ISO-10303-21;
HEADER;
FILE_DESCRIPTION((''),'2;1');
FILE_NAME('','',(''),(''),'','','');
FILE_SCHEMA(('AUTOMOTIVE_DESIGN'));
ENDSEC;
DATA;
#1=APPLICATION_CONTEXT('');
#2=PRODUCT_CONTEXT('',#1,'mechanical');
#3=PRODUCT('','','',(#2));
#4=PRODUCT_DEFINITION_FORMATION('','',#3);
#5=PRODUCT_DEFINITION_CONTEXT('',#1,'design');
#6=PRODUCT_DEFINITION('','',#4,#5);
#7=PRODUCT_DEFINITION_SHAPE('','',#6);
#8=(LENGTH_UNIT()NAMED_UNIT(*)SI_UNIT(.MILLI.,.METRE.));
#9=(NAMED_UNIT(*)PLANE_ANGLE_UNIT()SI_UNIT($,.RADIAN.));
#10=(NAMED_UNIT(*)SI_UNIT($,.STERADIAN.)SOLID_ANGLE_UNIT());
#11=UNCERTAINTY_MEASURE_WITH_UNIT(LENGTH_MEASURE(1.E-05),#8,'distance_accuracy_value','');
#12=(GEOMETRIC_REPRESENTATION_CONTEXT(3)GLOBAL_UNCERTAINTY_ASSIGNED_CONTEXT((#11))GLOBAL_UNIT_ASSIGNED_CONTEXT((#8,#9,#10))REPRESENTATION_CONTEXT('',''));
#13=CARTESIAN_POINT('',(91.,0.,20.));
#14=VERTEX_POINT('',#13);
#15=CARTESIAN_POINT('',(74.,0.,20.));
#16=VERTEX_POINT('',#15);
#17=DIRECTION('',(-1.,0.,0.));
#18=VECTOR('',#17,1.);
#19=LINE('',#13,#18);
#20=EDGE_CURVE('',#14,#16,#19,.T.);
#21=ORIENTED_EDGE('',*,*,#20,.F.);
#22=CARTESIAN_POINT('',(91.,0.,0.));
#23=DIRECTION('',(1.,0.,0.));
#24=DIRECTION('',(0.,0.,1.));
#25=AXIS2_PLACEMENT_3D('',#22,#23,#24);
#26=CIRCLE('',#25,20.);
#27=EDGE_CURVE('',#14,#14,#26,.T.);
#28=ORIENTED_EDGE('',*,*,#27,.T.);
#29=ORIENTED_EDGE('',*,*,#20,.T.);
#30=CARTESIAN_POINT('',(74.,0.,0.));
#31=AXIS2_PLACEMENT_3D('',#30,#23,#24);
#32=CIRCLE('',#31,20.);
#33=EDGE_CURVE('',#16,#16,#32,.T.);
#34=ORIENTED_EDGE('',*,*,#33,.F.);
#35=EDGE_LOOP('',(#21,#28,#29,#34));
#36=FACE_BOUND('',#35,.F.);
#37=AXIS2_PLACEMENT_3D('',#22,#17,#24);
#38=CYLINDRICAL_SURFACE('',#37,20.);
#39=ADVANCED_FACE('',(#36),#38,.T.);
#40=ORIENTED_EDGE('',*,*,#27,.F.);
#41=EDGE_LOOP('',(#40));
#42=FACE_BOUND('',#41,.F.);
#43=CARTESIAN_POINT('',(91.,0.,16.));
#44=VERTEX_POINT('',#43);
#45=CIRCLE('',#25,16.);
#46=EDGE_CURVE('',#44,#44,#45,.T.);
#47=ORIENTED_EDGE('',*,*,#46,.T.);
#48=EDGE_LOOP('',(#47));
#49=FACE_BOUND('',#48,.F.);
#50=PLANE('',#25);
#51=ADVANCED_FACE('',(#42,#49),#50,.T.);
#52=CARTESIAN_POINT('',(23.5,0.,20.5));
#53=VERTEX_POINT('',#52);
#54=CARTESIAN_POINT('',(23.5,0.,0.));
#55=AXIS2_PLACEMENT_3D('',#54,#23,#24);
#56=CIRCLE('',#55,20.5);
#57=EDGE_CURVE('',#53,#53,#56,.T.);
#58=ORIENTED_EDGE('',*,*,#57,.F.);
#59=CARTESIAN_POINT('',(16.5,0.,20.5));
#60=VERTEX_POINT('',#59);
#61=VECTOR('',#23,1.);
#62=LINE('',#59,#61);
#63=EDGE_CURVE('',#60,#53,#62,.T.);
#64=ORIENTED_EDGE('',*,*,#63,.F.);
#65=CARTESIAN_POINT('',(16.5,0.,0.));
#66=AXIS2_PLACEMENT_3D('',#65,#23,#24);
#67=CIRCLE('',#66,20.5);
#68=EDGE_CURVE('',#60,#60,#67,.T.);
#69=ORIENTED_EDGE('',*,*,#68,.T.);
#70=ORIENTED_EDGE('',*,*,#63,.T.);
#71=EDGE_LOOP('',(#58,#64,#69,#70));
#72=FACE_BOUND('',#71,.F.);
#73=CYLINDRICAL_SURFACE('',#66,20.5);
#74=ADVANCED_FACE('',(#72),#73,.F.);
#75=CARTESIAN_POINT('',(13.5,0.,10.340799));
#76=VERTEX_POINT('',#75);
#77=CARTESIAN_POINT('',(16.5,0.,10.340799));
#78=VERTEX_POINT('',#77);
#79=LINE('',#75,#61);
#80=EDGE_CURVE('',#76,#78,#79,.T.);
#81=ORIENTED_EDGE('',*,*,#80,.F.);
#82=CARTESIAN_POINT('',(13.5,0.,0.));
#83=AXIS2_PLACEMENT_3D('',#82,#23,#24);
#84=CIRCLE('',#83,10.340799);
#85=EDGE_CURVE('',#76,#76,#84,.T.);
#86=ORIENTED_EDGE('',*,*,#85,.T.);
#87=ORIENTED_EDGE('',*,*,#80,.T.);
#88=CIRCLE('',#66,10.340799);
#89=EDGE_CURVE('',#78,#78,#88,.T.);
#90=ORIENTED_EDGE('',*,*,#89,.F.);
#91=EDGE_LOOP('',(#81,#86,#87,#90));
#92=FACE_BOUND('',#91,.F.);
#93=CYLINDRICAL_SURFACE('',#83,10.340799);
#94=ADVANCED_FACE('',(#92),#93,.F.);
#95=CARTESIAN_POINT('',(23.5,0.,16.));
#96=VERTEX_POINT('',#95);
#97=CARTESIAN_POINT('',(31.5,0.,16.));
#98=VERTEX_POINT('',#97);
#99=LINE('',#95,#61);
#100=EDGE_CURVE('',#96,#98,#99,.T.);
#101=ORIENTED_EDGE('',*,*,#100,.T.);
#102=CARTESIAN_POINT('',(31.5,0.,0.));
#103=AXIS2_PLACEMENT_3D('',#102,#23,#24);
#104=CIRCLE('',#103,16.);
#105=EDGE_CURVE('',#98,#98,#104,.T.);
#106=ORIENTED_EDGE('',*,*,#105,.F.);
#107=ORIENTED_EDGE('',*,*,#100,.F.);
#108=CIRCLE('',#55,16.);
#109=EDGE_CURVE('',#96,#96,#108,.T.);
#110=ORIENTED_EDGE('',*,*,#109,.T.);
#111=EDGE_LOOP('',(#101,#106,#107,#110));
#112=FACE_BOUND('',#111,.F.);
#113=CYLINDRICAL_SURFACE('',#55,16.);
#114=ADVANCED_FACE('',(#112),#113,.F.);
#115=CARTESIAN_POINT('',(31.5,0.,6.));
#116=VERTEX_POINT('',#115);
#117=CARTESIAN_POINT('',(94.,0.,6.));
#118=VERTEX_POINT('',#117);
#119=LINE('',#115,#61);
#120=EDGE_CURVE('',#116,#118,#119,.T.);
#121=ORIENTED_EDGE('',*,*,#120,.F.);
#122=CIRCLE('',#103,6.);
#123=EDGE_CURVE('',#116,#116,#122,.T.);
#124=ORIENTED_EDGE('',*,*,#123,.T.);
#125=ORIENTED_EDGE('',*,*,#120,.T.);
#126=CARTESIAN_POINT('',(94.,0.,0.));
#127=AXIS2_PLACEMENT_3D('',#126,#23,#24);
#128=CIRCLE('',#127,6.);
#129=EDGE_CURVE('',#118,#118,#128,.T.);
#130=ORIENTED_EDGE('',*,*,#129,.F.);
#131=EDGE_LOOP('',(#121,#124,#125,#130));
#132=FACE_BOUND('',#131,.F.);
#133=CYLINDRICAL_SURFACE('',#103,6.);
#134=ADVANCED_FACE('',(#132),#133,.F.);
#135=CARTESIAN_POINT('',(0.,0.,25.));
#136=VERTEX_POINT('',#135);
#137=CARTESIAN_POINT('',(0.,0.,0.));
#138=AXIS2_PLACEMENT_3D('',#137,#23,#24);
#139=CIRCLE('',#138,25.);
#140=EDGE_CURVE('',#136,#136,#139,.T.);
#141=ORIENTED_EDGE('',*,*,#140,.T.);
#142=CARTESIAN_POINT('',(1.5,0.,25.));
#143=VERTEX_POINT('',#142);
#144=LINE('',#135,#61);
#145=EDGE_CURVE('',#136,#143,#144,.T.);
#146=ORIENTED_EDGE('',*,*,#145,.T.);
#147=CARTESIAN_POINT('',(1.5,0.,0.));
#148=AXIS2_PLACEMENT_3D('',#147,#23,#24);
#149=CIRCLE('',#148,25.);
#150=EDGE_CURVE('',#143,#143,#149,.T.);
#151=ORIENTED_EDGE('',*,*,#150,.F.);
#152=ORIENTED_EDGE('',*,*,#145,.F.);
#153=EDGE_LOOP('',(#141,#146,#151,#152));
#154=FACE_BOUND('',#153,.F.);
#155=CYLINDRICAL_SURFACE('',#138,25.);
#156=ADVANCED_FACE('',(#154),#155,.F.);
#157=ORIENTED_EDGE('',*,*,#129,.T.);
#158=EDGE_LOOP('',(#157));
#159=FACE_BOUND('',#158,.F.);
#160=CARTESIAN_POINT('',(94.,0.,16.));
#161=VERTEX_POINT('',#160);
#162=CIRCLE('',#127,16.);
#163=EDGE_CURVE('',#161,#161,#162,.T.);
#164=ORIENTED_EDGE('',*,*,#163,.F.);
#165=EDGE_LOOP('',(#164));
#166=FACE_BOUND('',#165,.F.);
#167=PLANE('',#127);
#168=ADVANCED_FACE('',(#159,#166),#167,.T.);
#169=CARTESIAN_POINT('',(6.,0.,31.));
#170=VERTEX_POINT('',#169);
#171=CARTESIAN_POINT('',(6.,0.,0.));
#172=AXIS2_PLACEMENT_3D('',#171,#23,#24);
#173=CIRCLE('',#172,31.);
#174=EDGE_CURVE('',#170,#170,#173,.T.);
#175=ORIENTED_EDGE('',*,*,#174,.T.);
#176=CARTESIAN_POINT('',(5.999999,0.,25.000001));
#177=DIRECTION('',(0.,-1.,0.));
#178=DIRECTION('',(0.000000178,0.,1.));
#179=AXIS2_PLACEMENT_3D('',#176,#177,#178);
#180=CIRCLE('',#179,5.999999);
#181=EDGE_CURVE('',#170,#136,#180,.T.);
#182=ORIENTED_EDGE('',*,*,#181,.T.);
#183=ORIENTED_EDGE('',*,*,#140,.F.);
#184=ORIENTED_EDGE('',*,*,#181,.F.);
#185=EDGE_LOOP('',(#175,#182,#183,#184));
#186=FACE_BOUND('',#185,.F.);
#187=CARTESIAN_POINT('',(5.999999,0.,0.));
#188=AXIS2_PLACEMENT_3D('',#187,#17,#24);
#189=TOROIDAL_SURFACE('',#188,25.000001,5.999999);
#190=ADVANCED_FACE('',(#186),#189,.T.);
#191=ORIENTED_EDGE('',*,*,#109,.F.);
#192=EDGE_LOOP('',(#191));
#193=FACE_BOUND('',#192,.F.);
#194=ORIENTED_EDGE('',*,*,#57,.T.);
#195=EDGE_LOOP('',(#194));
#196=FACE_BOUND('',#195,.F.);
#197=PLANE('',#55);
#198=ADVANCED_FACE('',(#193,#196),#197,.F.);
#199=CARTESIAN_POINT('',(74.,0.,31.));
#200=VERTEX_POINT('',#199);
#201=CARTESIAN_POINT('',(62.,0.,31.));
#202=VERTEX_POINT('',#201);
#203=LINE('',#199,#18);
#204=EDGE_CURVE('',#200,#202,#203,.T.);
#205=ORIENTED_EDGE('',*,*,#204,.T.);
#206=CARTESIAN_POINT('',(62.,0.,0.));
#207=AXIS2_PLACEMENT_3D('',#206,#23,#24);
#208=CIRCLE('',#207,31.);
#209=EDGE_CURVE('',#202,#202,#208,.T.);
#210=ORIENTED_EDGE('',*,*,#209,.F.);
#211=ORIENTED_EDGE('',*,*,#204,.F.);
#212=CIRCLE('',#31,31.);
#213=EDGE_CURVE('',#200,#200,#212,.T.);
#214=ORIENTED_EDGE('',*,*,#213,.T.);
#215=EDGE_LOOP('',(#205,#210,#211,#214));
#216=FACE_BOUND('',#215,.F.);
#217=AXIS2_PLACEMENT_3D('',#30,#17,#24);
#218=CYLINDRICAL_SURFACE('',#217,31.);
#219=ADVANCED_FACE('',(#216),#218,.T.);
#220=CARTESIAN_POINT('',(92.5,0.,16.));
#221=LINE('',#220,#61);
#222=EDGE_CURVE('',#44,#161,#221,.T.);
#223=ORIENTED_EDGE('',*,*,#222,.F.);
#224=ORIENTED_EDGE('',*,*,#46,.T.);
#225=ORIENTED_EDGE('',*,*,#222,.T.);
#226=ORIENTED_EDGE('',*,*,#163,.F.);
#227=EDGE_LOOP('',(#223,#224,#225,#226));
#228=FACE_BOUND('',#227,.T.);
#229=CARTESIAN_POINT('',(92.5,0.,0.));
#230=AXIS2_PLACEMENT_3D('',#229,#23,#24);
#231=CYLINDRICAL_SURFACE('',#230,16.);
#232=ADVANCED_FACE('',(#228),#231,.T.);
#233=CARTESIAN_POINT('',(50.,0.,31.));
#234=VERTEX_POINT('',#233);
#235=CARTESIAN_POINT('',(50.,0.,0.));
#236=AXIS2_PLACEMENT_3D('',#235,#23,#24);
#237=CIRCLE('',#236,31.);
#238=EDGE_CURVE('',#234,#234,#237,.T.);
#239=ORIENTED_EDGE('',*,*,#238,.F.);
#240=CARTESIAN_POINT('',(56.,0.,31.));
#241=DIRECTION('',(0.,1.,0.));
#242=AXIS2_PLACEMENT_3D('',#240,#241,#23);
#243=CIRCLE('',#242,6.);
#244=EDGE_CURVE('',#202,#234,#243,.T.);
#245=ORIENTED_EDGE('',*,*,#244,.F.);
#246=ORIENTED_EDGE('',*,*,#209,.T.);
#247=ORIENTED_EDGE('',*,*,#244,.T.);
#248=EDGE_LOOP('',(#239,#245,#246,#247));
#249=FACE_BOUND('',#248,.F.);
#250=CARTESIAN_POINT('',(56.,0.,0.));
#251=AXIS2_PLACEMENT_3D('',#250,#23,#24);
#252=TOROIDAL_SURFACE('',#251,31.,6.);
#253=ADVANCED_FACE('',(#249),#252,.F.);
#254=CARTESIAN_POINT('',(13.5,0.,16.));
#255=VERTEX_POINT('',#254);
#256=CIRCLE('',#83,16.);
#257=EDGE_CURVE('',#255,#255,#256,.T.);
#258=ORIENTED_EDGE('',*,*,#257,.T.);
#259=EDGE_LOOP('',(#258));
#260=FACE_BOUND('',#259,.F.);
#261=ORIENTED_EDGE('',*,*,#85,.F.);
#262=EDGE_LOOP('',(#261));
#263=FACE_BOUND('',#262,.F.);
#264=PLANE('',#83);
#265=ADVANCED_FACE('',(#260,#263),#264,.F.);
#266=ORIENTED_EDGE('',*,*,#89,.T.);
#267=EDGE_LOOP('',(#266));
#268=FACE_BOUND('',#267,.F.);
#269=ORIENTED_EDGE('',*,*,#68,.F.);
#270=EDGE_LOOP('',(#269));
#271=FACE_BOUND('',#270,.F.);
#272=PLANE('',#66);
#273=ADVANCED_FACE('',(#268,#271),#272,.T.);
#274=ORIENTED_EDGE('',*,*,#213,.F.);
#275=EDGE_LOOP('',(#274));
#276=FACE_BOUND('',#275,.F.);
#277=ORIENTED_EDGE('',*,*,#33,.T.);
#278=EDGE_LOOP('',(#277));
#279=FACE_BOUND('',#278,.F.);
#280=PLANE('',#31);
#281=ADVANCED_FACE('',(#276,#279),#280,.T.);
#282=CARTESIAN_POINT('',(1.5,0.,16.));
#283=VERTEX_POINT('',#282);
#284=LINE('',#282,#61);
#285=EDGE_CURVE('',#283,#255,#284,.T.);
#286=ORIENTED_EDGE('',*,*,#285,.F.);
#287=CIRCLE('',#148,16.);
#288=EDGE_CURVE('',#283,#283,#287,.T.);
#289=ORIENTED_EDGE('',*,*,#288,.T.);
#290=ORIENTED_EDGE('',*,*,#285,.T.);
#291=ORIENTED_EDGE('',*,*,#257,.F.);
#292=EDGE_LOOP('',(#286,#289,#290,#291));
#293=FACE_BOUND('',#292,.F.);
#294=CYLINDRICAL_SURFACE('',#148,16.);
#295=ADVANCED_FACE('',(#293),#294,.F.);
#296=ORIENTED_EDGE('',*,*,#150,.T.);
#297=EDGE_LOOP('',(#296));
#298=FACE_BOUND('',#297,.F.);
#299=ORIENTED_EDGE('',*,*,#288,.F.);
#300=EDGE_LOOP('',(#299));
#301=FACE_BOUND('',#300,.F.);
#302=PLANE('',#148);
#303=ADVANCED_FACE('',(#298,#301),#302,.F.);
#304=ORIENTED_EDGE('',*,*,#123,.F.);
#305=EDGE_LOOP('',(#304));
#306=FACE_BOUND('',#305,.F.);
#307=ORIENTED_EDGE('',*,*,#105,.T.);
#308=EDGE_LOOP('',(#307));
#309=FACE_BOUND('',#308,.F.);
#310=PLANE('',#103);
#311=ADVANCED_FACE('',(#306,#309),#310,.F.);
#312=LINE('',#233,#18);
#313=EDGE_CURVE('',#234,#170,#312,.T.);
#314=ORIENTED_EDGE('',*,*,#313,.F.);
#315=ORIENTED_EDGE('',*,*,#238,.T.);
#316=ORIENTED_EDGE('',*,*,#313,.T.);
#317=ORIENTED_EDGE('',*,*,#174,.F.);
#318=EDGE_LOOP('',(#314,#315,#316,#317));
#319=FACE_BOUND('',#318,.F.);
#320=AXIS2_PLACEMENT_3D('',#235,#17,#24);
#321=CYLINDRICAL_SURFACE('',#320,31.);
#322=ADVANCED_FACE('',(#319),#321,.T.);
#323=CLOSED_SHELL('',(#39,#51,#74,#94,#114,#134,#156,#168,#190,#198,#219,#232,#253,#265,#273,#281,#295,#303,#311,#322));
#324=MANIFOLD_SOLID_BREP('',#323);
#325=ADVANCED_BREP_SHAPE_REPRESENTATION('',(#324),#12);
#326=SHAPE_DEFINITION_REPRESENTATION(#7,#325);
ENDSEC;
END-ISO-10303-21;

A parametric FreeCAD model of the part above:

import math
import FreeCAD as App
import Part
import Sketcher
Q = App.Units.Quantity

doc = App.newDocument("Part")
params = doc.addObject("Spreadsheet::Sheet", "Params")
for row, (alias, value) in enumerate([
    ("sketch1_radius", "5.999999 mm"),
    ("sketch1_width", "12 mm"),
    ("sketch1_width2", "3 mm"),
    ("sketch1_width3", "7 mm"),
    ("sketch1_width4", "8 mm"),
    ("revolution_angle", "360 deg"),
], start=1):
    params.set(f"A{row}", alias)
    params.set(f"B{row}", "=" + value)
    params.setAlias(f"B{row}", alias)

body = doc.addObject("PartDesign::Body", "Body")

# Sketch on XZ plane
sketch1 = body.newObject("Sketcher::SketchObject", "Sketch")
sketch1.AttachmentSupport = (doc.getObject("XZ_Plane"), [""])
sketch1.MapMode = "FlatFace"
sketch1.addGeometry(Part.ArcOfCircle(Part.Circle(App.Vector(5.999999, 25.000001, 0), App.Vector(0, 0, 1), 5.999999), math.radians(89.99999), math.radians(180.00001)), False)
sketch1.addGeometry(Part.LineSegment(App.Vector(0, 25, 0), App.Vector(1.5, 25, 0)), False)
sketch1.addGeometry(Part.LineSegment(App.Vector(1.5, 25, 0), App.Vector(1.5, 16, 0)), False)
sketch1.addGeometry(Part.LineSegment(App.Vector(1.5, 16, 0), App.Vector(13.5, 16, 0)), False)
sketch1.addGeometry(Part.LineSegment(App.Vector(13.5, 16, 0), App.Vector(13.5, 10.340799, 0)), False)
sketch1.addGeometry(Part.LineSegment(App.Vector(13.5, 10.340799, 0), App.Vector(16.5, 10.340799, 0)), False)
sketch1.addGeometry(Part.LineSegment(App.Vector(16.5, 10.340799, 0), App.Vector(16.5, 20.5, 0)), False)
sketch1.addGeometry(Part.LineSegment(App.Vector(16.5, 20.5, 0), App.Vector(23.5, 20.5, 0)), False)
sketch1.addGeometry(Part.LineSegment(App.Vector(23.5, 20.5, 0), App.Vector(23.5, 16, 0)), False)
sketch1.addGeometry(Part.LineSegment(App.Vector(23.5, 16, 0), App.Vector(31.5, 16, 0)), False)
sketch1.addGeometry(Part.LineSegment(App.Vector(31.5, 16, 0), App.Vector(31.5, 6, 0)), False)
sketch1.addGeometry(Part.LineSegment(App.Vector(31.5, 6, 0), App.Vector(94, 6, 0)), False)
sketch1.addGeometry(Part.LineSegment(App.Vector(94, 6, 0), App.Vector(94, 16, 0)), False)
sketch1.addGeometry(Part.LineSegment(App.Vector(94, 16, 0), App.Vector(91, 16, 0)), False)
sketch1.addGeometry(Part.LineSegment(App.Vector(91, 16, 0), App.Vector(91, 20, 0)), False)
sketch1.addGeometry(Part.LineSegment(App.Vector(91, 20, 0), App.Vector(74, 20, 0)), False)
sketch1.addGeometry(Part.LineSegment(App.Vector(74, 20, 0), App.Vector(74, 31, 0)), False)
sketch1.addGeometry(Part.LineSegment(App.Vector(74, 31, 0), App.Vector(62, 31, 0)), False)
sketch1.addGeometry(Part.ArcOfCircle(Part.Circle(App.Vector(56, 31, 0), App.Vector(0, 0, 1), 6), math.radians(180), math.radians(360)), False)
sketch1.addGeometry(Part.LineSegment(App.Vector(50, 31, 0), App.Vector(6, 31, 0)), False)
sketch1.addConstraint(Sketcher.Constraint("Coincident", 0, 2, 1, 1))
sketch1.addConstraint(Sketcher.Constraint("Coincident", 1, 2, 2, 1))
sketch1.addConstraint(Sketcher.Constraint("Coincident", 2, 2, 3, 1))
sketch1.addConstraint(Sketcher.Constraint("Coincident", 3, 2, 4, 1))
sketch1.addConstraint(Sketcher.Constraint("Coincident", 4, 2, 5, 1))
sketch1.addConstraint(Sketcher.Constraint("Coincident", 5, 2, 6, 1))
sketch1.addConstraint(Sketcher.Constraint("Coincident", 6, 2, 7, 1))
sketch1.addConstraint(Sketcher.Constraint("Coincident", 7, 2, 8, 1))
sketch1.addConstraint(Sketcher.Constraint("Coincident", 8, 2, 9, 1))
sketch1.addConstraint(Sketcher.Constraint("Coincident", 9, 2, 10, 1))
sketch1.addConstraint(Sketcher.Constraint("Coincident", 10, 2, 11, 1))
sketch1.addConstraint(Sketcher.Constraint("Coincident", 11, 2, 12, 1))
sketch1.addConstraint(Sketcher.Constraint("Coincident", 12, 2, 13, 1))
sketch1.addConstraint(Sketcher.Constraint("Coincident", 13, 2, 14, 1))
sketch1.addConstraint(Sketcher.Constraint("Coincident", 14, 2, 15, 1))
sketch1.addConstraint(Sketcher.Constraint("Coincident", 15, 2, 16, 1))
sketch1.addConstraint(Sketcher.Constraint("Coincident", 16, 2, 17, 1))
sketch1.addConstraint(Sketcher.Constraint("Coincident", 17, 2, 18, 2))
sketch1.addConstraint(Sketcher.Constraint("Coincident", 18, 1, 19, 1))
sketch1.addConstraint(Sketcher.Constraint("Tangent", 19, 2, 0, 1))
sketch1.addConstraint(Sketcher.Constraint("Horizontal", 1))
sketch1.addConstraint(Sketcher.Constraint("Vertical", 2))
sketch1.addConstraint(Sketcher.Constraint("Horizontal", 3))
sketch1.addConstraint(Sketcher.Constraint("Vertical", 4))
sketch1.addConstraint(Sketcher.Constraint("Horizontal", 5))
sketch1.addConstraint(Sketcher.Constraint("Vertical", 6))
sketch1.addConstraint(Sketcher.Constraint("Horizontal", 7))
sketch1.addConstraint(Sketcher.Constraint("Vertical", 8))
sketch1.addConstraint(Sketcher.Constraint("Horizontal", 9))
sketch1.addConstraint(Sketcher.Constraint("Vertical", 10))
sketch1.addConstraint(Sketcher.Constraint("Horizontal", 11))
sketch1.addConstraint(Sketcher.Constraint("Vertical", 12))
sketch1.addConstraint(Sketcher.Constraint("Horizontal", 13))
sketch1.addConstraint(Sketcher.Constraint("Vertical", 14))
sketch1.addConstraint(Sketcher.Constraint("Horizontal", 15))
sketch1.addConstraint(Sketcher.Constraint("Vertical", 16))
sketch1.addConstraint(Sketcher.Constraint("Horizontal", 17))
sketch1.addConstraint(Sketcher.Constraint("Horizontal", 19))
sketch1.addConstraint(Sketcher.Constraint("Equal", 0, 18))
sketch1.addConstraint(Sketcher.Constraint("PointOnObject", 0, 2, -2))
sketch1.addConstraint(Sketcher.Constraint("Horizontal", 3, 2, 8, 2))
sketch1.addConstraint(Sketcher.Constraint("Horizontal", 9, 2, 12, 2))
sketch1.addConstraint(Sketcher.Constraint("Horizontal", 18, 3, 16, 2))
sketch1.addConstraint(Sketcher.Constraint("Horizontal", 17, 2, 18, 1))
sketch1.addConstraint(Sketcher.Constraint("Equal", 5, 13))
sketch1.addConstraint(Sketcher.Constraint("Equal", 3, 17))
sketch1.addConstraint(Sketcher.Constraint("Radius", 0, Q("5.999999 mm")))
sketch1.addConstraint(Sketcher.Constraint("DistanceX", 3, 1, 3, 2, Q("12 mm")))
sketch1.addConstraint(Sketcher.Constraint("DistanceX", 5, 1, 5, 2, Q("3 mm")))
sketch1.addConstraint(Sketcher.Constraint("DistanceX", 7, 1, 7, 2, Q("7 mm")))
sketch1.addConstraint(Sketcher.Constraint("DistanceX", 9, 1, 9, 2, Q("8 mm")))
sketch1.addConstraint(Sketcher.Constraint("DistanceX", 15, 2, 15, 1, Q("17 mm")))
sketch1.addConstraint(Sketcher.Constraint("DistanceX", 19, 2, 19, 1, Q("44 mm")))
sketch1.addConstraint(Sketcher.Constraint("DistanceY", 2, 2, 2, 1, Q("9 mm")))
sketch1.addConstraint(Sketcher.Constraint("DistanceY", 10, 2, 10, 1, Q("10 mm")))
sketch1.addConstraint(Sketcher.Constraint("DistanceY", 14, 1, 14, 2, Q("4 mm")))
sketch1.addConstraint(Sketcher.Constraint("DistanceY", 16, 1, 16, 2, Q("11 mm")))
sketch1.addConstraint(Sketcher.Constraint("DistanceX", 1, 1, 1, 2, Q("1.5 mm")))
sketch1.addConstraint(Sketcher.Constraint("DistanceY", 8, 2, 8, 1, Q("4.5 mm")))
sketch1.addConstraint(Sketcher.Constraint("DistanceY", -1, 1, 0, 3, Q("25.000001 mm")))
sketch1.addConstraint(Sketcher.Constraint("DistanceY", 4, 2, 4, 1, Q("5.659201 mm")))
sketch1.setExpression("Constraints[46]", "Params.sketch1_radius")
sketch1.setExpression("Constraints[47]", "Params.sketch1_width")
sketch1.setExpression("Constraints[48]", "Params.sketch1_width2")
sketch1.setExpression("Constraints[49]", "Params.sketch1_width3")
sketch1.setExpression("Constraints[50]", "Params.sketch1_width4")
revolution = body.newObject("PartDesign::Revolution", "Revolution")
revolution.Profile = sketch1
revolution.ReferenceAxis = (sketch1, ["H_Axis"])
revolution.setExpression("Angle", "Params.revolution_angle")

doc.recompute()
